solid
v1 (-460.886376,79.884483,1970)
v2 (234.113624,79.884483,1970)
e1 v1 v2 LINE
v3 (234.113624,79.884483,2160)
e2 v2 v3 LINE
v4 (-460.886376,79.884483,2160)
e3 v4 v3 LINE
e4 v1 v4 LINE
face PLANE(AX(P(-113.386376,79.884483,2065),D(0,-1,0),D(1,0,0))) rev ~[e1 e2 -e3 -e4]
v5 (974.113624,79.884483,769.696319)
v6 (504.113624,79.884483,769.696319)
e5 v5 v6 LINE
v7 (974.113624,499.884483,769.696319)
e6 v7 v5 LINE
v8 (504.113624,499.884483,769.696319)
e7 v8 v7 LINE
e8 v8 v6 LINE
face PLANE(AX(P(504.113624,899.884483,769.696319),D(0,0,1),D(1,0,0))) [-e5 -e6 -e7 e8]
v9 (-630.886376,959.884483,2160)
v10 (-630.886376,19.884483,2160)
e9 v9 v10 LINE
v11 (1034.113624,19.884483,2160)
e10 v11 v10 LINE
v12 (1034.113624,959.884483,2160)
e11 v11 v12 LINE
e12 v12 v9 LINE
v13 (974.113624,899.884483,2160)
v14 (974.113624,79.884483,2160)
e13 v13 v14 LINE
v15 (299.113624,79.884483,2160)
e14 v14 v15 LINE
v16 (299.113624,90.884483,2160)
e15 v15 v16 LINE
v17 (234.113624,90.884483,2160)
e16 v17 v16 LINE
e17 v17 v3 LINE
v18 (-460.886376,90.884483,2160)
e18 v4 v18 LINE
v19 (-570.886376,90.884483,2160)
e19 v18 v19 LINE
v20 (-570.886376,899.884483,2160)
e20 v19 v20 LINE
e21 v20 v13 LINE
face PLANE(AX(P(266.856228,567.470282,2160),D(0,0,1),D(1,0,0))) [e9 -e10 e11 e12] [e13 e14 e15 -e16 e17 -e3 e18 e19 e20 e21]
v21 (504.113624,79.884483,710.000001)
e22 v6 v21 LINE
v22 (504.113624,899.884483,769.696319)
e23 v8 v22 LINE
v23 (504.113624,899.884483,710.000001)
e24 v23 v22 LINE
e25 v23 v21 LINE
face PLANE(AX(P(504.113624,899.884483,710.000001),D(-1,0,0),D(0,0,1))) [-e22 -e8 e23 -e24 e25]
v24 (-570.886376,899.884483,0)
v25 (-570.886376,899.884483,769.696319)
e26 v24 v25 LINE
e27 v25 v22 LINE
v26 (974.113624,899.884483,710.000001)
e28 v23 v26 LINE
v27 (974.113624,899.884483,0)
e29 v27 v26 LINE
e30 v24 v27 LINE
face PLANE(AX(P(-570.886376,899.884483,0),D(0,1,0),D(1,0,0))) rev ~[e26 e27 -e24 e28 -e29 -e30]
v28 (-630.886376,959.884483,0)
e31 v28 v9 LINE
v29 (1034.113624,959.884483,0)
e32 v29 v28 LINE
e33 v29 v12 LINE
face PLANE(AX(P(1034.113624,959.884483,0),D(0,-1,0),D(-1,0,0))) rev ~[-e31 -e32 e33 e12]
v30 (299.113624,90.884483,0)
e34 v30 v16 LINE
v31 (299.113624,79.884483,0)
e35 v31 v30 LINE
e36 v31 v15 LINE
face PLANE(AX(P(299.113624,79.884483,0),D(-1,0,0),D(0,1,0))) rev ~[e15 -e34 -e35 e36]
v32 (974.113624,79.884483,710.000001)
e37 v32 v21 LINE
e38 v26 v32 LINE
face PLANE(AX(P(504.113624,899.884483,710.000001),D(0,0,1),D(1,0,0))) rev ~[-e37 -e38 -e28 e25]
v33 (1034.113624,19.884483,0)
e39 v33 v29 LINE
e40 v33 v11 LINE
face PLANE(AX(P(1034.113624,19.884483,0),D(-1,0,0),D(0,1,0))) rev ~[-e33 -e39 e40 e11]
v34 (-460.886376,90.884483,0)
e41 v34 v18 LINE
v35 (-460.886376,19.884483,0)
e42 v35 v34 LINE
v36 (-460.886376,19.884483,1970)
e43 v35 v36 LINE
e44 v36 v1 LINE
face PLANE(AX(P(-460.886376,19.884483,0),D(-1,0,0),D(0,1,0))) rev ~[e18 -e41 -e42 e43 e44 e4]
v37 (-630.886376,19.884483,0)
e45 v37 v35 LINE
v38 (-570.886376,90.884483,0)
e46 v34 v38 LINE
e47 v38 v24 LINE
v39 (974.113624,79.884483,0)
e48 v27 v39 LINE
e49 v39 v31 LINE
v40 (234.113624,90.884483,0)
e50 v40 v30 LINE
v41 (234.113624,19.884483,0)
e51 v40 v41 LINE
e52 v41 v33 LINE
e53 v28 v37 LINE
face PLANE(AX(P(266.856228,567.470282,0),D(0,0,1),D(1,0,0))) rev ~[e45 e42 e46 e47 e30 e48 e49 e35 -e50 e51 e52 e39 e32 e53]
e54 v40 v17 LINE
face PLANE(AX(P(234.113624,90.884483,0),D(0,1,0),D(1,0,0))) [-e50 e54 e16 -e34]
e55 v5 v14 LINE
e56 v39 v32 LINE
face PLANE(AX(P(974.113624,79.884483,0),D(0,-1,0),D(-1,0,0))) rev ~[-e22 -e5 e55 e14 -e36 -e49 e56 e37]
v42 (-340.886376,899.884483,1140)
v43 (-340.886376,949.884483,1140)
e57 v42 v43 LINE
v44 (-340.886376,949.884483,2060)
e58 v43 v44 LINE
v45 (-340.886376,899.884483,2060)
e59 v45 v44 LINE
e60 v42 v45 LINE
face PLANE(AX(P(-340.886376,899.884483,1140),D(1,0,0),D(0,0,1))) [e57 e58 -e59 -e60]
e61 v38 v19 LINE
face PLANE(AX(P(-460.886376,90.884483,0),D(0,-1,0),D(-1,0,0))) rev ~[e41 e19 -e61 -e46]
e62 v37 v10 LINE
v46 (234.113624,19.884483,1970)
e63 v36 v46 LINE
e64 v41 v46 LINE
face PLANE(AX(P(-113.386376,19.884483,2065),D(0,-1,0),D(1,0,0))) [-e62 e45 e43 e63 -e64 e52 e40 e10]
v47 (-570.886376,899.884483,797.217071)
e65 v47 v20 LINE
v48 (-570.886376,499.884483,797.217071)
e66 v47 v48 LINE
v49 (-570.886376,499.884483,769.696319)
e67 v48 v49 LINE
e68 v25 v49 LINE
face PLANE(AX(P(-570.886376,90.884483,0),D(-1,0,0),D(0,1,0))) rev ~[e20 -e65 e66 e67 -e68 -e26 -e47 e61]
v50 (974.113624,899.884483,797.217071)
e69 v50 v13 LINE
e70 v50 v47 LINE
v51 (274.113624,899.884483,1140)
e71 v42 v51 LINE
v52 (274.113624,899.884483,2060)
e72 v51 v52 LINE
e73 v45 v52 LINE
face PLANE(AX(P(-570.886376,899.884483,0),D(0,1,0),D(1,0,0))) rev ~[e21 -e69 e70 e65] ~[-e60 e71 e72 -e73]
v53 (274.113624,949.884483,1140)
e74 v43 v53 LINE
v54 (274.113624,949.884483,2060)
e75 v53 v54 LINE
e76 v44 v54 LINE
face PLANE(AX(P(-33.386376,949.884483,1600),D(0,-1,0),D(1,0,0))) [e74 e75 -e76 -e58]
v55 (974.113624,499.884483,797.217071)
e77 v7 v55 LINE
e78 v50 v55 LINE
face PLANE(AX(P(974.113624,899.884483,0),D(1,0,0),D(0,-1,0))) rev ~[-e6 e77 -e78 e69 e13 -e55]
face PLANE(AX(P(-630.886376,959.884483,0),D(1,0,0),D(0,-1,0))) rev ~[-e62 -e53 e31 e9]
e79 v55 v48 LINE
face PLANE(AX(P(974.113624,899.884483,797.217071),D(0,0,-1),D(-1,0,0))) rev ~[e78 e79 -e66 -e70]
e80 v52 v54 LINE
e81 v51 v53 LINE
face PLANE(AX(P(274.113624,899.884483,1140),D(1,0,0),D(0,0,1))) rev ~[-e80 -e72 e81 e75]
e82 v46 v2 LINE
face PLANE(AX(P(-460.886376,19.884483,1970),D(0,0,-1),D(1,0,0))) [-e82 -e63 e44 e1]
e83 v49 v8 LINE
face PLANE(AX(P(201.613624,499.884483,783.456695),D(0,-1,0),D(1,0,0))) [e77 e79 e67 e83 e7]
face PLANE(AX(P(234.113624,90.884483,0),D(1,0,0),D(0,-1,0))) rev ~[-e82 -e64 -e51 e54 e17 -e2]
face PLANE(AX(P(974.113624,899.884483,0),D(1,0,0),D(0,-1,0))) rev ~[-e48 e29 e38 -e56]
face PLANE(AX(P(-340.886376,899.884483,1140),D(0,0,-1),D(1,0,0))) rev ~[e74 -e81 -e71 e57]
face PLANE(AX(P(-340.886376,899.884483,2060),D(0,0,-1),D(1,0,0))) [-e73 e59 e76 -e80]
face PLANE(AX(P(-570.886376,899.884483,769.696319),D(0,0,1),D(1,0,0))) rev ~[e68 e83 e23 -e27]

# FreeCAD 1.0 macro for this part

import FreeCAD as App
import Part
import Sketcher
from FreeCAD import Vector

doc = App.newDocument("Part")
body = doc.addObject("PartDesign::Body", "Body")

# Sketch on XY plane
sketch1 = body.newObject("Sketcher::SketchObject", "Sketch")
sketch1.AttachmentSupport = (doc.getObject("XY_Plane"), [""])
sketch1.MapMode = "FlatFace"
sketch1.addGeometry([
    Part.LineSegment(Vector(-570.886376, 899.884483, 0), Vector(974.113624, 899.884483, 0)),  # 0
    Part.LineSegment(Vector(974.113624, 899.884483, 0), Vector(974.113624, 79.884483, 0)),  # 1
    Part.LineSegment(Vector(974.113624, 79.884483, 0), Vector(299.113624, 79.884483, 0)),  # 2
    Part.LineSegment(Vector(299.113624, 79.884483, 0), Vector(299.113624, 90.884483, 0)),  # 3
    Part.LineSegment(Vector(299.113624, 90.884483, 0), Vector(234.113624, 90.884483, 0)),  # 4
    Part.LineSegment(Vector(234.113624, 90.884483, 0), Vector(234.113624, 19.884483, 0)),  # 5
    Part.LineSegment(Vector(234.113624, 19.884483, 0), Vector(1034.113624, 19.884483, 0)),  # 6
    Part.LineSegment(Vector(1034.113624, 19.884483, 0), Vector(1034.113624, 959.884483, 0)),  # 7
    Part.LineSegment(Vector(1034.113624, 959.884483, 0), Vector(-630.886376, 959.884483, 0)),  # 8
    Part.LineSegment(Vector(-630.886376, 959.884483, 0), Vector(-630.886376, 19.884483, 0)),  # 9
    Part.LineSegment(Vector(-630.886376, 19.884483, 0), Vector(-460.886376, 19.884483, 0)),  # 10
    Part.LineSegment(Vector(-460.886376, 19.884483, 0), Vector(-460.886376, 90.884483, 0)),  # 11
    Part.LineSegment(Vector(-460.886376, 90.884483, 0), Vector(-570.886376, 90.884483, 0)),  # 12
    Part.LineSegment(Vector(-570.886376, 90.884483, 0), Vector(-570.886376, 899.884483, 0)),  # 13
], False)
sketch1.addConstraint([
    Sketcher.Constraint("Coincident", 0, 2, 1, 1),
    Sketcher.Constraint("Coincident", 1, 2, 2, 1),
    Sketcher.Constraint("Coincident", 2, 2, 3, 1),
    Sketcher.Constraint("Coincident", 3, 2, 4, 1),
    Sketcher.Constraint("Coincident", 4, 2, 5, 1),
    Sketcher.Constraint("Coincident", 5, 2, 6, 1),
    Sketcher.Constraint("Coincident", 6, 2, 7, 1),
    Sketcher.Constraint("Coincident", 7, 2, 8, 1),
    Sketcher.Constraint("Coincident", 8, 2, 9, 1),
    Sketcher.Constraint("Coincident", 9, 2, 10, 1),
    Sketcher.Constraint("Coincident", 10, 2, 11, 1),
    Sketcher.Constraint("Coincident", 11, 2, 12, 1),
    Sketcher.Constraint("Coincident", 12, 2, 13, 1),
    Sketcher.Constraint("Coincident", 13, 2, 0, 1),
    Sketcher.Constraint("Horizontal", 0),
    Sketcher.Constraint("Vertical", 1),
    Sketcher.Constraint("Horizontal", 2),
    Sketcher.Constraint("Vertical", 3),
    Sketcher.Constraint("Horizontal", 4),
    Sketcher.Constraint("Vertical", 5),
    Sketcher.Constraint("Horizontal", 6),
    Sketcher.Constraint("Vertical", 7),
    Sketcher.Constraint("Horizontal", 8),
    Sketcher.Constraint("Vertical", 9),
    Sketcher.Constraint("Horizontal", 10),
    Sketcher.Constraint("Vertical", 11),
    Sketcher.Constraint("Horizontal", 12),
    Sketcher.Constraint("Vertical", 13),
    Sketcher.Constraint("Horizontal", 6, 2, 9, 2),
    Sketcher.Constraint("Horizontal", 4, 2, 11, 2),
    Sketcher.Constraint("DistanceX", 0, 1, 0, 2, 1545.0),
    Sketcher.Constraint("DistanceX", 2, 2, 2, 1, 675.0),
    Sketcher.Constraint("DistanceX", 4, 2, 4, 1, 65.0),
    Sketcher.Constraint("DistanceX", 6, 1, 6, 2, 800.0),
    Sketcher.Constraint("DistanceX", 8, 2, 8, 1, 1665.0),
    Sketcher.Constraint("DistanceX", 10, 1, 10, 2, 170.0),
    Sketcher.Constraint("DistanceY", 1, 2, 1, 1, 820.0),
    Sketcher.Constraint("DistanceY", 3, 1, 3, 2, 11.0),
    Sketcher.Constraint("DistanceY", 5, 2, 5, 1, 71.0),
    Sketcher.Constraint("DistanceY", 7, 1, 7, 2, 940.0),
    Sketcher.Constraint("DistanceX", -1, 1, 0, 2, 974.113624),
    Sketcher.Constraint("DistanceY", -1, 1, 0, 2, 899.884483),
])
pad1 = body.newObject("PartDesign::Pad", "Pad")
pad1.Profile = sketch1
pad1.Length = 2160

# Sketch on XZ plane
sketch2 = body.newObject("Sketcher::SketchObject", "Sketch001")
sketch2.AttachmentSupport = (doc.getObject("XZ_Plane"), [""])
sketch2.MapMode = "FlatFace"
sketch2.AttachmentOffset = App.Placement(Vector(0, 0, -899.884483), App.Rotation())
sketch2.addGeometry([
    Part.LineSegment(Vector(-340.886376, 2060, 0), Vector(-340.886376, 1140, 0)),
    Part.LineSegment(Vector(-340.886376, 1140, 0), Vector(274.113624, 1140, 0)),
    Part.LineSegment(Vector(274.113624, 1140, 0), Vector(274.113624, 2060, 0)),
    Part.LineSegment(Vector(274.113624, 2060, 0), Vector(-340.886376, 2060, 0)),
], False)
sketch2.addConstraint([
    Sketcher.Constraint("Coincident", 0, 2, 1, 1),
    Sketcher.Constraint("Coincident", 1, 2, 2, 1),
    Sketcher.Constraint("Coincident", 2, 2, 3, 1),
    Sketcher.Constraint("Coincident", 3, 2, 0, 1),
    Sketcher.Constraint("Vertical", 0),
    Sketcher.Constraint("Horizontal", 1),
    Sketcher.Constraint("Vertical", 2),
    Sketcher.Constraint("Horizontal", 3),
    Sketcher.Constraint("DistanceX", 1, 1, 1, 2, 615.0),
    Sketcher.Constraint("DistanceY", 0, 2, 0, 1, 920.0),
    Sketcher.Constraint("DistanceY", -1, 1, 0, 2, 1140.0),
    Sketcher.Constraint("DistanceX", 0, 2, -1, 1, 340.886376),
])
pocket1 = body.newObject("PartDesign::Pocket", "Pocket")
pocket1.Profile = sketch2
pocket1.Length = 50

# Sketch on XZ plane
sketch3 = body.newObject("Sketcher::SketchObject", "Sketch002")
sketch3.AttachmentSupport = (doc.getObject("XZ_Plane"), [""])
sketch3.MapMode = "FlatFace"
sketch3.AttachmentOffset = App.Placement(Vector(0, 0, -899.884483), App.Rotation())
sketch3.addGeometry([
    Part.LineSegment(Vector(504.113624, 769.696319, 0), Vector(504.113624, 710.000001, 0)),
    Part.LineSegment(Vector(504.113624, 710.000001, 0), Vector(974.113624, 710.000001, 0)),
    Part.LineSegment(Vector(974.113624, 710.000001, 0), Vector(974.113624, 769.696319, 0)),
    Part.LineSegment(Vector(974.113624, 769.696319, 0), Vector(504.113624, 769.696319, 0)),
], False)
sketch3.addConstraint([
    Sketcher.Constraint("Coincident", 0, 2, 1, 1),
    Sketcher.Constraint("Coincident", 1, 2, 2, 1),
    Sketcher.Constraint("Coincident", 2, 2, 3, 1),
    Sketcher.Constraint("Coincident", 3, 2, 0, 1),
    Sketcher.Constraint("Vertical", 0),
    Sketcher.Constraint("Horizontal", 1),
    Sketcher.Constraint("Vertical", 2),
    Sketcher.Constraint("Horizontal", 3),
    Sketcher.Constraint("DistanceX", 1, 1, 1, 2, 470.0),
    Sketcher.Constraint("DistanceY", -1, 1, 0, 2, 710.000001),
    Sketcher.Constraint("DistanceY", 0, 2, 0, 1, 59.696319),
    Sketcher.Constraint("DistanceX", -1, 1, 0, 2, 504.113624),
])
pad2 = body.newObject("PartDesign::Pad", "Pad001")
pad2.Profile = sketch3
pad2.Length = 850

# Sketch on XZ plane
sketch4 = body.newObject("Sketcher::SketchObject", "Sketch003")
sketch4.AttachmentSupport = (doc.getObject("XZ_Plane"), [""])
sketch4.MapMode = "FlatFace"
sketch4.AttachmentOffset = App.Placement(Vector(0, 0, -19.884483), App.Rotation())
sketch4.addGeometry([
    Part.LineSegment(Vector(-460.886376, 2160, 0), Vector(-460.886376, 1970, 0)),
    Part.LineSegment(Vector(-460.886376, 1970, 0), Vector(234.113624, 1970, 0)),
    Part.LineSegment(Vector(234.113624, 1970, 0), Vector(234.113624, 2160, 0)),
    Part.LineSegment(Vector(234.113624, 2160, 0), Vector(-460.886376, 2160, 0)),
], False)
sketch4.addConstraint([
    Sketcher.Constraint("Coincident", 0, 2, 1, 1),
    Sketcher.Constraint("Coincident", 1, 2, 2, 1),
    Sketcher.Constraint("Coincident", 2, 2, 3, 1),
    Sketcher.Constraint("Coincident", 3, 2, 0, 1),
    Sketcher.Constraint("Vertical", 0),
    Sketcher.Constraint("Horizontal", 1),
    Sketcher.Constraint("Vertical", 2),
    Sketcher.Constraint("Horizontal", 3),
    Sketcher.Constraint("DistanceX", 1, 1, 1, 2, 695.0),
    Sketcher.Constraint("DistanceY", 0, 2, 0, 1, 190.0),
    Sketcher.Constraint("DistanceY", -1, 1, 0, 2, 1970.0),
    Sketcher.Constraint("DistanceX", 0, 2, -1, 1, 460.886376),
])
pad3 = body.newObject("PartDesign::Pad", "Pad002")
pad3.Profile = sketch4
pad3.Length = 60
pad3.Reversed = True

# Sketch on XZ plane
sketch5 = body.newObject("Sketcher::SketchObject", "Sketch004")
sketch5.AttachmentSupport = (doc.getObject("XZ_Plane"), [""])
sketch5.MapMode = "FlatFace"
sketch5.AttachmentOffset = App.Placement(Vector(0, 0, -899.884483), App.Rotation())
sketch5.addGeometry([
    Part.LineSegment(Vector(974.113624, 797.217071, 0), Vector(-570.886376, 797.217071, 0)),
    Part.LineSegment(Vector(-570.886376, 797.217071, 0), Vector(-570.886376, 769.696319, 0)),
    Part.LineSegment(Vector(-570.886376, 769.696319, 0), Vector(974.113624, 769.696319, 0)),
    Part.LineSegment(Vector(974.113624, 769.696319, 0), Vector(974.113624, 797.217071, 0)),
], False)
sketch5.addConstraint([
    Sketcher.Constraint("Coincident", 0, 2, 1, 1),
    Sketcher.Constraint("Coincident", 1, 2, 2, 1),
    Sketcher.Constraint("Coincident", 2, 2, 3, 1),
    Sketcher.Constraint("Coincident", 3, 2, 0, 1),
    Sketcher.Constraint("Horizontal", 0),
    Sketcher.Constraint("Vertical", 1),
    Sketcher.Constraint("Horizontal", 2),
    Sketcher.Constraint("Vertical", 3),
    Sketcher.Constraint("DistanceX", 0, 2, 0, 1, 1545.0),
    Sketcher.Constraint("DistanceY", 1, 2, 1, 1, 27.520752),
    Sketcher.Constraint("DistanceY", -1, 1, 0, 2, 797.217071),
    Sketcher.Constraint("DistanceX", 0, 2, -1, 1, 570.886376),
])
pad4 = body.newObject("PartDesign::Pad", "Pad003")
pad4.Profile = sketch5
pad4.Length = 400

doc.recompute()
